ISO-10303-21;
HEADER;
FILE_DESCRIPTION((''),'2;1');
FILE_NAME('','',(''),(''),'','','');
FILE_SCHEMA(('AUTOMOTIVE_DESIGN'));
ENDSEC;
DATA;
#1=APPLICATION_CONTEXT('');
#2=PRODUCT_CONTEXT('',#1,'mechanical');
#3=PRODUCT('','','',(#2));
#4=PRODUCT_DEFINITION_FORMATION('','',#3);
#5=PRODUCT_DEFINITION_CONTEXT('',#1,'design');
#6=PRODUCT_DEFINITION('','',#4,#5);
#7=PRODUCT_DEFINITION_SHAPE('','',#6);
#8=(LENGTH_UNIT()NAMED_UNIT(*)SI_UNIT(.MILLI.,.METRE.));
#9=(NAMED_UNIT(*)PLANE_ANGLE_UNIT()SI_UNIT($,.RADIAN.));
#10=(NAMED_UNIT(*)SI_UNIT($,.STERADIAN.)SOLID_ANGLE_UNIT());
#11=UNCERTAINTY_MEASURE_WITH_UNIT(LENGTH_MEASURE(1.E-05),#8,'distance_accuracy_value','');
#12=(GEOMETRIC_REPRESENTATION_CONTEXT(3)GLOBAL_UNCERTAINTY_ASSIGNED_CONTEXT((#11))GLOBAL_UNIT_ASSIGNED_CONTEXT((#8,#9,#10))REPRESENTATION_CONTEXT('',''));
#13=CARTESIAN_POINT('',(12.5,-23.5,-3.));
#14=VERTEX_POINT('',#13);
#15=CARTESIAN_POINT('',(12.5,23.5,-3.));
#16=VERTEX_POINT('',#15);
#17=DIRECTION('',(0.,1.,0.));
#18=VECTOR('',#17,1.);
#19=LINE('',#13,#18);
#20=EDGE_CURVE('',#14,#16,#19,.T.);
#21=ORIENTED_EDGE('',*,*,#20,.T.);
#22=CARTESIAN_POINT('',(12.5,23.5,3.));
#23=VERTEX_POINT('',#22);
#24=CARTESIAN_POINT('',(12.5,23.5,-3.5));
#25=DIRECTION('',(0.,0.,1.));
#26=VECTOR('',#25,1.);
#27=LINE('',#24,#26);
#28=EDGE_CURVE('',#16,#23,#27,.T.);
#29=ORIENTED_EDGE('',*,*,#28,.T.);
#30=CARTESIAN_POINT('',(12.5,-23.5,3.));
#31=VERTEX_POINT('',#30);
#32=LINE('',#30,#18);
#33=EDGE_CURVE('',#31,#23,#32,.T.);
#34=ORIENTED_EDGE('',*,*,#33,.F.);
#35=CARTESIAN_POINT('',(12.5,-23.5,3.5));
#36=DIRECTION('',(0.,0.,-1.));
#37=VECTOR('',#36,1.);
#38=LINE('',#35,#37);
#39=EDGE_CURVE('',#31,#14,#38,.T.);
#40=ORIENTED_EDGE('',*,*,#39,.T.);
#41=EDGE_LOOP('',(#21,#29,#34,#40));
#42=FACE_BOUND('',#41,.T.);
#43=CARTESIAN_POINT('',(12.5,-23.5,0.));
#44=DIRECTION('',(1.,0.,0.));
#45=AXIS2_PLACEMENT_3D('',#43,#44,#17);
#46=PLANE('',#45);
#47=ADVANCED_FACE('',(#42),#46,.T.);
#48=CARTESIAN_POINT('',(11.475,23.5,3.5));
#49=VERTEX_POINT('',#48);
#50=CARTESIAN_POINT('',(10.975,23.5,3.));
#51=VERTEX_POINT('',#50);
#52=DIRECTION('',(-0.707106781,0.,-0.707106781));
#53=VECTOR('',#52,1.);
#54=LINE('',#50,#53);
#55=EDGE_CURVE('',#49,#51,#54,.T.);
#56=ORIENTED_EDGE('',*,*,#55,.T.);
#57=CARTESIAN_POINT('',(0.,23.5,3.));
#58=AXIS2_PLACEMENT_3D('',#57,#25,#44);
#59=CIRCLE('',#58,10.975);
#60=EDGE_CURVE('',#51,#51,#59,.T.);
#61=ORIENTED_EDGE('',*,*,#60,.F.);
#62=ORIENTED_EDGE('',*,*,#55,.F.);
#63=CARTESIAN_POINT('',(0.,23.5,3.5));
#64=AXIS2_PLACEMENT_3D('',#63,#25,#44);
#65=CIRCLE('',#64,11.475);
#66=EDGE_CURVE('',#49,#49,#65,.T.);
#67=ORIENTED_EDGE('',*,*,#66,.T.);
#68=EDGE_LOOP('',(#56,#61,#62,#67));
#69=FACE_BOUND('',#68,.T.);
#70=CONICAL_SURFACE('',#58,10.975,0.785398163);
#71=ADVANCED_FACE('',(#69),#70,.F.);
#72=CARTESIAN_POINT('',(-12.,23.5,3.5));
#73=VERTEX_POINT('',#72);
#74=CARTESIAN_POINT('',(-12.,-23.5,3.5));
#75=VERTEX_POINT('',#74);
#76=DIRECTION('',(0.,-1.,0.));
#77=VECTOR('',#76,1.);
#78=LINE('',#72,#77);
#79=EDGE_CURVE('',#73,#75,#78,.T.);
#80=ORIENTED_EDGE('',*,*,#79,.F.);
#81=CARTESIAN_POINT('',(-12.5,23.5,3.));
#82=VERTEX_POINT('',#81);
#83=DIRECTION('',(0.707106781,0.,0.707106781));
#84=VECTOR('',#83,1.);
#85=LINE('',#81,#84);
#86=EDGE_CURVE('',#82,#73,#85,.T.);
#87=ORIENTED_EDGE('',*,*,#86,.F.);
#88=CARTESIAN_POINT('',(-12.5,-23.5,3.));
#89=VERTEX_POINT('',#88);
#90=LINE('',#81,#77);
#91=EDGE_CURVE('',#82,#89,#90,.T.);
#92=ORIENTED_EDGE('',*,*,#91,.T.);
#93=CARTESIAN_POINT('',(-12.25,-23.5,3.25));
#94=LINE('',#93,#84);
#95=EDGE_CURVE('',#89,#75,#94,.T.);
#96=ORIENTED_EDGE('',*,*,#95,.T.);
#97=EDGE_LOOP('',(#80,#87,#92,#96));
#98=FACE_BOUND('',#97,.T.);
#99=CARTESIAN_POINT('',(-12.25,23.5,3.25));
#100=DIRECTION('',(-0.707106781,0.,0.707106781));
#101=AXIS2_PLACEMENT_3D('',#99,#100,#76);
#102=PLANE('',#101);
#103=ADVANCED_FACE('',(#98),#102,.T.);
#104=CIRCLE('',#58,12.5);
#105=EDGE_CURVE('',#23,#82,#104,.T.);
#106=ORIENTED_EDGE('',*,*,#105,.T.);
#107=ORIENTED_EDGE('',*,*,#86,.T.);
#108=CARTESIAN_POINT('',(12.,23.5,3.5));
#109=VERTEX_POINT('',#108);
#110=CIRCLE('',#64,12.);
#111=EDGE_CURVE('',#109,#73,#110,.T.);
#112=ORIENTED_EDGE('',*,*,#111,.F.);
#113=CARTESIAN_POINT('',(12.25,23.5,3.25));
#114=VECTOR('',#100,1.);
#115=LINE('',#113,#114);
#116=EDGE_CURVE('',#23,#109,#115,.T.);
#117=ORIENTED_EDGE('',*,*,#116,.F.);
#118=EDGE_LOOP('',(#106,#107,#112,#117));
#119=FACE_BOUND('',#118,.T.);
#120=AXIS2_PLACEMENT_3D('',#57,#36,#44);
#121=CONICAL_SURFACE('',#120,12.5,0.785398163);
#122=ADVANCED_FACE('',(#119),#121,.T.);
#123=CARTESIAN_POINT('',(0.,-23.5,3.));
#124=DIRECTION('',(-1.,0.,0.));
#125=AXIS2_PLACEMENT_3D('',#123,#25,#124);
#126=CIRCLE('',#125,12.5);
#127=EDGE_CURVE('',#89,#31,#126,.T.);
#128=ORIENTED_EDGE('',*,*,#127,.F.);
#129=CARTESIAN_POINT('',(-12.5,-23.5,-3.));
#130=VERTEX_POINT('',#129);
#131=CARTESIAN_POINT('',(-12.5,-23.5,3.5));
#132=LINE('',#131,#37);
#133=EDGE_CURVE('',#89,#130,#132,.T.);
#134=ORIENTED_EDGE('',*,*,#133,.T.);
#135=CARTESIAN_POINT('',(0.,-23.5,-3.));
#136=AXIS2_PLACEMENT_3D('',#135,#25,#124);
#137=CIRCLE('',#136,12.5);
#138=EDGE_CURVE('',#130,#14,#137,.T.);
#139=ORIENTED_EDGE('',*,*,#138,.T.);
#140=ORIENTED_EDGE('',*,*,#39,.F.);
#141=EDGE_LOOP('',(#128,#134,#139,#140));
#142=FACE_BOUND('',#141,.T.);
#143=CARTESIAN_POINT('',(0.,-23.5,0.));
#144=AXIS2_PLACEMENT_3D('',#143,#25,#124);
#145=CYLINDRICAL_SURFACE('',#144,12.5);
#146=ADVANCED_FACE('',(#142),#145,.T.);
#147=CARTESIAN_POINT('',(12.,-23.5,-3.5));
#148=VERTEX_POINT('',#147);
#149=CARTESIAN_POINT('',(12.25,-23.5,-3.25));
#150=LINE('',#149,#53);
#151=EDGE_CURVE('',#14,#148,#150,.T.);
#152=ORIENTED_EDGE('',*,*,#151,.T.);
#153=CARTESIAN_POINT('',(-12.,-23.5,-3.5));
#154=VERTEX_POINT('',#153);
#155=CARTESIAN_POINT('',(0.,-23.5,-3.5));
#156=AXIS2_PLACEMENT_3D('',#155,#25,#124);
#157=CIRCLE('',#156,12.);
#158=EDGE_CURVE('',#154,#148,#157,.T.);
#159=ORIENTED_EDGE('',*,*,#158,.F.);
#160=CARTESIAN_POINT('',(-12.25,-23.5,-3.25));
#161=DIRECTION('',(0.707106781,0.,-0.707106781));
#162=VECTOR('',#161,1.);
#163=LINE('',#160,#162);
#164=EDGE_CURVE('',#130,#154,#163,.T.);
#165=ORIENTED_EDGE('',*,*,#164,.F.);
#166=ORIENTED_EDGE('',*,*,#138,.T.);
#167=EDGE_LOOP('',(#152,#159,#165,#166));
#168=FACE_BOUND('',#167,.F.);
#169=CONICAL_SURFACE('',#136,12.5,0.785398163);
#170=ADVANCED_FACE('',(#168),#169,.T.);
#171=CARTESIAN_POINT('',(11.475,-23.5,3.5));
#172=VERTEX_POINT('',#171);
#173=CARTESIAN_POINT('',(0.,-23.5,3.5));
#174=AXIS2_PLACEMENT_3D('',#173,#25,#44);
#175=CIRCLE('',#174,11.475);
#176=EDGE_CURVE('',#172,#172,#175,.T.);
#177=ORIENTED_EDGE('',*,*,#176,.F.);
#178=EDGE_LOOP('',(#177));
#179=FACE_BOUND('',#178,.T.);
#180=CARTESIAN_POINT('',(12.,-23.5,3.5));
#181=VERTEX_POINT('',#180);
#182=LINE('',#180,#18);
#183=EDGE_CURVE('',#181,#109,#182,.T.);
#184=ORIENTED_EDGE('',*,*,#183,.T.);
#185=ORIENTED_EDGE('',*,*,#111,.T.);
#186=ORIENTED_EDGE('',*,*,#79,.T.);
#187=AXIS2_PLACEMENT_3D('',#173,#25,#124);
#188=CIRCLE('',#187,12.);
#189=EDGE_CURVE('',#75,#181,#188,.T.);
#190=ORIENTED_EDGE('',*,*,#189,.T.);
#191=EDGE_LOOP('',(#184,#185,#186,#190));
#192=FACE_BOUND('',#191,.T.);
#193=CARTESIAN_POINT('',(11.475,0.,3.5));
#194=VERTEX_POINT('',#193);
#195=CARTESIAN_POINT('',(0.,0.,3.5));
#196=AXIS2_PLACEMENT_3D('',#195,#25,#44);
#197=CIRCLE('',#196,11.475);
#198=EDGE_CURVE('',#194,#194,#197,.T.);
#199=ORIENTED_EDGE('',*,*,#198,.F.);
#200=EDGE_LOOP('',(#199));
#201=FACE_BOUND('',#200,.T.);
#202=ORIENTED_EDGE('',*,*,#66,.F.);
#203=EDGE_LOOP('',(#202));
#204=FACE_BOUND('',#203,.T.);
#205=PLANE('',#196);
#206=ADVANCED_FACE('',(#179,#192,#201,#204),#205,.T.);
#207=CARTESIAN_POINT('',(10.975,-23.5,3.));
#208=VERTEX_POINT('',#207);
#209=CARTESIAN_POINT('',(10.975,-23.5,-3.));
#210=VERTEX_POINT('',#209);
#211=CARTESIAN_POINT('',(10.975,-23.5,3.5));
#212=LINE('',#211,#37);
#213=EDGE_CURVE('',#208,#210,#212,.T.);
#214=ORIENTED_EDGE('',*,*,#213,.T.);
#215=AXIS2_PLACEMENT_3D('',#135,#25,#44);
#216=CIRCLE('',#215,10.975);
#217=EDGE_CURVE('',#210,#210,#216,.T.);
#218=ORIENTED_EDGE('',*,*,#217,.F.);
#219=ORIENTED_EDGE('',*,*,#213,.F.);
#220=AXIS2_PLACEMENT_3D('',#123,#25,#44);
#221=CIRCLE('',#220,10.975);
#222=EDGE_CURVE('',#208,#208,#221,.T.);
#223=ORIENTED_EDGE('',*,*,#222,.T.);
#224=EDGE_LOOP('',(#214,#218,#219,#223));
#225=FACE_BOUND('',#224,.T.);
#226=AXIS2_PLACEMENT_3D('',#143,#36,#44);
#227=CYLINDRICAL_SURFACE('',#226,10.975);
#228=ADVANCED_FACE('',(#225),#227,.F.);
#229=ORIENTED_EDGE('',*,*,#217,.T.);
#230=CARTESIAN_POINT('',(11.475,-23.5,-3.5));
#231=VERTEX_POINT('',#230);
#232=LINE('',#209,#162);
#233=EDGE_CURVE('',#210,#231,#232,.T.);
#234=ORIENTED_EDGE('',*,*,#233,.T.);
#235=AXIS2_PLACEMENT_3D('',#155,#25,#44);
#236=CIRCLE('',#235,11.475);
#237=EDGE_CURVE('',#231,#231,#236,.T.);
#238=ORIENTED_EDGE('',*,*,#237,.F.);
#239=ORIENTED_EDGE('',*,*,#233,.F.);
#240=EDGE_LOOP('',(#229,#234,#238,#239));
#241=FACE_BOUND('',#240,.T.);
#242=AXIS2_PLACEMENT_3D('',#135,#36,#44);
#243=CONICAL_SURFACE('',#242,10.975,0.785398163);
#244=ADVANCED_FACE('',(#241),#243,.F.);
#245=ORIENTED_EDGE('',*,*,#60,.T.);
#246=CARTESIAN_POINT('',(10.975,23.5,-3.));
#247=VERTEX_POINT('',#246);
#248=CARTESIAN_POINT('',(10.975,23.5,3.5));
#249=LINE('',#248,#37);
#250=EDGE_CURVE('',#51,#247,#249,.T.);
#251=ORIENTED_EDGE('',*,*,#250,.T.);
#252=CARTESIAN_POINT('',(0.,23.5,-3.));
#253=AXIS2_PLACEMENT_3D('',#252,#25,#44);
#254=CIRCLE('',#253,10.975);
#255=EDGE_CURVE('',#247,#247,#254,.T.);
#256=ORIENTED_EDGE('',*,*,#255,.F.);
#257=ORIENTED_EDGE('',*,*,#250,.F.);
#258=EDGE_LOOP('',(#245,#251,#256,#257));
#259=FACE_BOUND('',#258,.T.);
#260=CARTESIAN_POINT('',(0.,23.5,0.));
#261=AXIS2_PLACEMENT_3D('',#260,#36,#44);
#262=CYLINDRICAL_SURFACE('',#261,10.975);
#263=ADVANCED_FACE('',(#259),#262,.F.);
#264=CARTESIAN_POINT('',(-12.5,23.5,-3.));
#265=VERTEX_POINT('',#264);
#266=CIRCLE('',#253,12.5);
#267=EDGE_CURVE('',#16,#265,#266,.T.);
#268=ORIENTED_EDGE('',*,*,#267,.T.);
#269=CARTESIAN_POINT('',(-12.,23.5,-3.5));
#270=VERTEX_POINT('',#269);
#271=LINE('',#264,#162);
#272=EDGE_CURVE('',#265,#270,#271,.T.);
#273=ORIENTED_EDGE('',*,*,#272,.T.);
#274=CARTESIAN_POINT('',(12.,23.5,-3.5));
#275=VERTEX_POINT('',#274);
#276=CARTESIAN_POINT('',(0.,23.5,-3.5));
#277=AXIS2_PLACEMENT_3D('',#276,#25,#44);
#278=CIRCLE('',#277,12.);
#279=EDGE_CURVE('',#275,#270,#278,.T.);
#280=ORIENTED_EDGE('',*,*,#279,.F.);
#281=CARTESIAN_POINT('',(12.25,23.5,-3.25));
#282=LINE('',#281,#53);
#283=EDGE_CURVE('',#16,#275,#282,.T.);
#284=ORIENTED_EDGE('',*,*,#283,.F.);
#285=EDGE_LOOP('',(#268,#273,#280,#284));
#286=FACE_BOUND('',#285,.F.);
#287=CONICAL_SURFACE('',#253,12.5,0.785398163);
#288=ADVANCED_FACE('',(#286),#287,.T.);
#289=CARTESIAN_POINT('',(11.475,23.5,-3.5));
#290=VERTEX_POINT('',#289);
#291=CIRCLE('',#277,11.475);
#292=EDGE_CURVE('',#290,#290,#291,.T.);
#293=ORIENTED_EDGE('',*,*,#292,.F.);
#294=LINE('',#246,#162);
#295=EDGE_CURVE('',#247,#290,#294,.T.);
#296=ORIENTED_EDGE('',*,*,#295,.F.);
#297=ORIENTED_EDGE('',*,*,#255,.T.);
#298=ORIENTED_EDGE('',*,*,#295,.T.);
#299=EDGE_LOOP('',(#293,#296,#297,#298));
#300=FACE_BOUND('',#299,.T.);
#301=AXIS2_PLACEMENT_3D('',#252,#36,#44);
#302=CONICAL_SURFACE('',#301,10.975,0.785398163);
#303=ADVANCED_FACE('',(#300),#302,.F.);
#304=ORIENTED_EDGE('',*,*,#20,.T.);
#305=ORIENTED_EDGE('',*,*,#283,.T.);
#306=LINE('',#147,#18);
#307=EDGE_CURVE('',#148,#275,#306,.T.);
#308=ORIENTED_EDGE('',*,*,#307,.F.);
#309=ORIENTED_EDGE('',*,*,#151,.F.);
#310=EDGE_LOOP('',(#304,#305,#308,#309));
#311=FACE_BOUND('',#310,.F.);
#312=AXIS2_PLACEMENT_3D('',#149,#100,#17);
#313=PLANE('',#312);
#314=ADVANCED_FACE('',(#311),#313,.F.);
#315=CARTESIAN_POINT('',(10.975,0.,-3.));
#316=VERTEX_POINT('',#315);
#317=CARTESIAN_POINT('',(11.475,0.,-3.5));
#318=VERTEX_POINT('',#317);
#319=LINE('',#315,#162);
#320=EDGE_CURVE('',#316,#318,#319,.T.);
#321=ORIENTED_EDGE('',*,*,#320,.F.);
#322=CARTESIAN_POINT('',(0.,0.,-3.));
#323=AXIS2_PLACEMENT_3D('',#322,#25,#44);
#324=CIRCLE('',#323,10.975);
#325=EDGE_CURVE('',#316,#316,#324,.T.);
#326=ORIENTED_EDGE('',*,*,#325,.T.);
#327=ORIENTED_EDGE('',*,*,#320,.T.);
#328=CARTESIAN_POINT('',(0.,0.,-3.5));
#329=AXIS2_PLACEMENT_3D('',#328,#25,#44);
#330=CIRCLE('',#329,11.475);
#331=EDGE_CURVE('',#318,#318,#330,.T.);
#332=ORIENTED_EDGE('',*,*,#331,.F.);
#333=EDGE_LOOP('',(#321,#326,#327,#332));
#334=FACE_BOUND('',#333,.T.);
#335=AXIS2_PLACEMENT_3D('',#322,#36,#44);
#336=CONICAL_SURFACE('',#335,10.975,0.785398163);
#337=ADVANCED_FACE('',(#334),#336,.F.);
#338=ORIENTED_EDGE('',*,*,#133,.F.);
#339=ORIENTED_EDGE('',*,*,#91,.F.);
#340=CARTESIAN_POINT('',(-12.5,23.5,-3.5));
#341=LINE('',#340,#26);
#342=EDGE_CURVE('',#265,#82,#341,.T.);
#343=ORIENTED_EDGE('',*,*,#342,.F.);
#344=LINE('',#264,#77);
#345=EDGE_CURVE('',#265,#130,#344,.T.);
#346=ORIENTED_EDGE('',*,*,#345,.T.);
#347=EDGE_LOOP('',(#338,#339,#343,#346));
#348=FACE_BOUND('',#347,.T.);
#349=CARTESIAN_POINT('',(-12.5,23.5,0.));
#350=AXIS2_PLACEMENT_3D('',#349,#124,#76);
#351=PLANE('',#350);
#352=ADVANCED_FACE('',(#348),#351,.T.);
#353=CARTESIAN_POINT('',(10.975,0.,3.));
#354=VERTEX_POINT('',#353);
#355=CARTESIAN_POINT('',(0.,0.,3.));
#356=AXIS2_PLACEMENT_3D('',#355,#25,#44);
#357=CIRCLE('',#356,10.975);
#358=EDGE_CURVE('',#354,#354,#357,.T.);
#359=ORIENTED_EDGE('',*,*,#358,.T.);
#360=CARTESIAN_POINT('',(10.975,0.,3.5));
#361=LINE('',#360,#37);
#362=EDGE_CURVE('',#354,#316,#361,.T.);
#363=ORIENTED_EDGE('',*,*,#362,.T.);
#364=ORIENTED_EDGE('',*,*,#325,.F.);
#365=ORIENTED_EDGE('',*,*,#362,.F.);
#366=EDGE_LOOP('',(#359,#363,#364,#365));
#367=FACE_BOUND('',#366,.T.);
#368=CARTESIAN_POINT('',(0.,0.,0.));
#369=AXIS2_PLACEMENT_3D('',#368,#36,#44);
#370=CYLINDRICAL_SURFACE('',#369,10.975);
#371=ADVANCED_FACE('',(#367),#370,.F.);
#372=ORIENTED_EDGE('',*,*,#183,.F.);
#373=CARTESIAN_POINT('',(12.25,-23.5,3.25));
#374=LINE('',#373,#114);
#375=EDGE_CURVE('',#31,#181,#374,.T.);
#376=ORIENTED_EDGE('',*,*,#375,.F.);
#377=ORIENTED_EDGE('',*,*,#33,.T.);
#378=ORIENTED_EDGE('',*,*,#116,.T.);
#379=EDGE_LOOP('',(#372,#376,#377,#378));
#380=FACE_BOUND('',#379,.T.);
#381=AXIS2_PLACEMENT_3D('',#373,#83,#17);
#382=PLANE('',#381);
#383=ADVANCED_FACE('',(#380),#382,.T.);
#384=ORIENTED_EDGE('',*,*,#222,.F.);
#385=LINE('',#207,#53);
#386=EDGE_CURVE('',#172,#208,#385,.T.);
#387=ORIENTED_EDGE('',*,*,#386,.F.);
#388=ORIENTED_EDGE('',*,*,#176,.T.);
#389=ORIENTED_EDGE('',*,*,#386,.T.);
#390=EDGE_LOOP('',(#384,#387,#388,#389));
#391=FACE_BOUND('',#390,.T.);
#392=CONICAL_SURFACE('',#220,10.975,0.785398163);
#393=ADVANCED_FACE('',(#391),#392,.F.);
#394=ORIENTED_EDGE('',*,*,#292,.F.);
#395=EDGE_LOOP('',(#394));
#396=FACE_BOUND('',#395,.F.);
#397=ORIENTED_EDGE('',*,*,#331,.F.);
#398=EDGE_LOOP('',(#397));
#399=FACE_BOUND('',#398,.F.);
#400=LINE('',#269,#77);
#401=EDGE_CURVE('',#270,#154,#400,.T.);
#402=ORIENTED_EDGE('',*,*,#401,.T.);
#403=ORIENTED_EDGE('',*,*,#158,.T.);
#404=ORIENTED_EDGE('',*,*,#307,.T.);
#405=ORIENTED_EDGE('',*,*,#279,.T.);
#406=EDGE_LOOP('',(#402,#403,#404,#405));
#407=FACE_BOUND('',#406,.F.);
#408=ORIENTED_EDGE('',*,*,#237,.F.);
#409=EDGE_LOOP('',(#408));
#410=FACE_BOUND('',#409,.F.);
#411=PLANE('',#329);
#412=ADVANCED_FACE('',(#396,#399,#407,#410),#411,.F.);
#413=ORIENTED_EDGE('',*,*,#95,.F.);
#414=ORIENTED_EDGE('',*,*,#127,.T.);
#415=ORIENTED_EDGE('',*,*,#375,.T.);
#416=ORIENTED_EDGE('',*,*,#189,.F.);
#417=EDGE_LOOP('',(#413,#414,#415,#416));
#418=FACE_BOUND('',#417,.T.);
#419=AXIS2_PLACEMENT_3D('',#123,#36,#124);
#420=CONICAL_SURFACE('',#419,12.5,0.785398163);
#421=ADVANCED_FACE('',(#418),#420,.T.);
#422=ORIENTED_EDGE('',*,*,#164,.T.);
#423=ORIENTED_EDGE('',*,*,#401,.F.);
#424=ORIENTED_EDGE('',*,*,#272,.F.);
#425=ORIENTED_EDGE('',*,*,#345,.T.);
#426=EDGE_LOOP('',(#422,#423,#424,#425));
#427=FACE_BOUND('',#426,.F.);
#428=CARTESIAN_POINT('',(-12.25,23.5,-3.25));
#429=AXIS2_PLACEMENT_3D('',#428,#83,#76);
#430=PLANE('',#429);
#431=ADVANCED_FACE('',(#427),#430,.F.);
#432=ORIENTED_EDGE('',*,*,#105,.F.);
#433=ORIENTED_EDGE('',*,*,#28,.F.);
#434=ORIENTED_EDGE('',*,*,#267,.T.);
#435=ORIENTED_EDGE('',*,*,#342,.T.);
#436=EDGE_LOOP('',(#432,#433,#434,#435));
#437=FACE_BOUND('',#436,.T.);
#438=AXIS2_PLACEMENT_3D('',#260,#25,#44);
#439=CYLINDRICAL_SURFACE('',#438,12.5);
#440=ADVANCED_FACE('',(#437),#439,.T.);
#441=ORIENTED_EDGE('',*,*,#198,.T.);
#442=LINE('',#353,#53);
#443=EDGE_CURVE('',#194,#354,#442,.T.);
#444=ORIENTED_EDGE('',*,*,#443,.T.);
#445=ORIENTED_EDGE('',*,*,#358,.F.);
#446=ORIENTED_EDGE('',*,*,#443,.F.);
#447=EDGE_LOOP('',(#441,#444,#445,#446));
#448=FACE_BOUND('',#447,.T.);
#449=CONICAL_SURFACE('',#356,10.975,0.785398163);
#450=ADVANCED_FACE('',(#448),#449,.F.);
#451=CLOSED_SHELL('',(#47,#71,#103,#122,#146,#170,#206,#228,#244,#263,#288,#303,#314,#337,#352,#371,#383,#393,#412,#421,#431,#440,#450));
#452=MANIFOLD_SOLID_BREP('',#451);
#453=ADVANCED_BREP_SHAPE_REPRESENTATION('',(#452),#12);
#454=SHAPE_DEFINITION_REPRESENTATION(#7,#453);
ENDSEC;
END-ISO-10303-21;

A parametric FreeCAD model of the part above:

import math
import FreeCAD as App
import Part
import Sketcher
Q = App.Units.Quantity


def edges_at(feature, points):
    """Names of the edges that pass closest to the given points."""
    edges = feature.Shape.Edges
    near = lambda p: min(range(len(edges)), key=lambda i: edges[i].distToShape(Part.Vertex(*p))[0])
    return sorted({f"Edge{near(p) + 1}" for p in points})

doc = App.newDocument("Part")
params = doc.addObject("Spreadsheet::Sheet", "Params")
for row, (alias, value) in enumerate([
    ("sketch1_radius", "12.5 mm"),
    ("sketch1_diameter", "21.95 mm"),
    ("sketch1_height", "47 mm"),
    ("pad1_length", "7 mm"),
    ("chamfer_size", "0.5 mm"),
], start=1):
    params.set(f"A{row}", alias)
    params.set(f"B{row}", "=" + value)
    params.setAlias(f"B{row}", alias)

body = doc.addObject("PartDesign::Body", "Body")

# Sketch on XY plane
sketch1 = body.newObject("Sketcher::SketchObject", "Sketch")
sketch1.AttachmentSupport = (doc.getObject("XY_Plane"), [""])
sketch1.MapMode = "FlatFace"
sketch1.addGeometry([
    Part.LineSegment(App.Vector(12, -24, 0), App.Vector(12, 24, 0)),  # 0
    Part.ArcOfCircle(Part.Circle(App.Vector(0, 24, 0), App.Vector(0, 0, 1), 12), math.radians(0), math.radians(180)),  # 1
    Part.LineSegment(App.Vector(-12, 24, 0), App.Vector(-12, -24, 0)),  # 2
    Part.ArcOfCircle(Part.Circle(App.Vector(0, -24, 0), App.Vector(0, 0, 1), 12), math.radians(180), math.radians(360)),  # 3
    Part.Circle(App.Vector(0, -24, 0), App.Vector(0, 0, 1), 11),  # 4
    Part.Circle(App.Vector(0, 0, 0), App.Vector(0, 0, 1), 11),  # 5
    Part.Circle(App.Vector(0, 24, 0), App.Vector(0, 0, 1), 11),  # 6
], False)
sketch1.addConstraint([
    Sketcher.Constraint("Tangent", 0, 2, 1, 1),
    Sketcher.Constraint("Tangent", 1, 2, 2, 1),
    Sketcher.Constraint("Tangent", 2, 2, 3, 1),
    Sketcher.Constraint("Tangent", 3, 2, 0, 1),
    Sketcher.Constraint("Vertical", 0),
    Sketcher.Constraint("Vertical", 2),
    Sketcher.Constraint("Coincident", 5, 3, -1, 1),
    Sketcher.Constraint("Coincident", 4, 3, 3, 3),
    Sketcher.Constraint("Coincident", 6, 3, 1, 3),
    Sketcher.Constraint("Equal", 4, 5),
    Sketcher.Constraint("Equal", 5, 6),
    Sketcher.Constraint("Symmetric", 1, 3, 3, 3, -1, 1),
    Sketcher.Constraint("Radius", 1, Q("12.5 mm")),
    Sketcher.Constraint("Diameter", 4, Q("21.95 mm")),
    Sketcher.Constraint("DistanceY", 0, 1, 0, 2, Q("47 mm")),
])
sketch1.setExpression("Constraints[12]", "Params.sketch1_radius")
sketch1.setExpression("Constraints[13]", "Params.sketch1_diameter")
sketch1.setExpression("Constraints[14]", "Params.sketch1_height")
pad1 = body.newObject("PartDesign::Pad", "Pad")
pad1.Profile = sketch1
pad1.setExpression("Length", "Params.pad1_length")
pad1.Midplane = True
doc.recompute()

chamfer = body.newObject("PartDesign::Chamfer", "Chamfer")
chamfer.Base = (pad1, edges_at(pad1, [
    (12.5, 0, -3.5),
    (0, 36, -3.5),
    (-12.5, 0, -3.5),
    (0, -36, -3.5),
    (-10.975, -23.5, -3.5),
    (-10.975, 0, -3.5),
    (-10.975, 23.5, -3.5),
    (12.5, 0, 3.5),
    (0, 36, 3.5),
    (-12.5, 0, 3.5),
    (0, -36, 3.5),
    (-10.975, -23.5, 3.5),
    (-10.975, 0, 3.5),
    (-10.975, 23.5, 3.5),
]))
chamfer.setExpression("Size", "Params.chamfer_size")

doc.recompute()
